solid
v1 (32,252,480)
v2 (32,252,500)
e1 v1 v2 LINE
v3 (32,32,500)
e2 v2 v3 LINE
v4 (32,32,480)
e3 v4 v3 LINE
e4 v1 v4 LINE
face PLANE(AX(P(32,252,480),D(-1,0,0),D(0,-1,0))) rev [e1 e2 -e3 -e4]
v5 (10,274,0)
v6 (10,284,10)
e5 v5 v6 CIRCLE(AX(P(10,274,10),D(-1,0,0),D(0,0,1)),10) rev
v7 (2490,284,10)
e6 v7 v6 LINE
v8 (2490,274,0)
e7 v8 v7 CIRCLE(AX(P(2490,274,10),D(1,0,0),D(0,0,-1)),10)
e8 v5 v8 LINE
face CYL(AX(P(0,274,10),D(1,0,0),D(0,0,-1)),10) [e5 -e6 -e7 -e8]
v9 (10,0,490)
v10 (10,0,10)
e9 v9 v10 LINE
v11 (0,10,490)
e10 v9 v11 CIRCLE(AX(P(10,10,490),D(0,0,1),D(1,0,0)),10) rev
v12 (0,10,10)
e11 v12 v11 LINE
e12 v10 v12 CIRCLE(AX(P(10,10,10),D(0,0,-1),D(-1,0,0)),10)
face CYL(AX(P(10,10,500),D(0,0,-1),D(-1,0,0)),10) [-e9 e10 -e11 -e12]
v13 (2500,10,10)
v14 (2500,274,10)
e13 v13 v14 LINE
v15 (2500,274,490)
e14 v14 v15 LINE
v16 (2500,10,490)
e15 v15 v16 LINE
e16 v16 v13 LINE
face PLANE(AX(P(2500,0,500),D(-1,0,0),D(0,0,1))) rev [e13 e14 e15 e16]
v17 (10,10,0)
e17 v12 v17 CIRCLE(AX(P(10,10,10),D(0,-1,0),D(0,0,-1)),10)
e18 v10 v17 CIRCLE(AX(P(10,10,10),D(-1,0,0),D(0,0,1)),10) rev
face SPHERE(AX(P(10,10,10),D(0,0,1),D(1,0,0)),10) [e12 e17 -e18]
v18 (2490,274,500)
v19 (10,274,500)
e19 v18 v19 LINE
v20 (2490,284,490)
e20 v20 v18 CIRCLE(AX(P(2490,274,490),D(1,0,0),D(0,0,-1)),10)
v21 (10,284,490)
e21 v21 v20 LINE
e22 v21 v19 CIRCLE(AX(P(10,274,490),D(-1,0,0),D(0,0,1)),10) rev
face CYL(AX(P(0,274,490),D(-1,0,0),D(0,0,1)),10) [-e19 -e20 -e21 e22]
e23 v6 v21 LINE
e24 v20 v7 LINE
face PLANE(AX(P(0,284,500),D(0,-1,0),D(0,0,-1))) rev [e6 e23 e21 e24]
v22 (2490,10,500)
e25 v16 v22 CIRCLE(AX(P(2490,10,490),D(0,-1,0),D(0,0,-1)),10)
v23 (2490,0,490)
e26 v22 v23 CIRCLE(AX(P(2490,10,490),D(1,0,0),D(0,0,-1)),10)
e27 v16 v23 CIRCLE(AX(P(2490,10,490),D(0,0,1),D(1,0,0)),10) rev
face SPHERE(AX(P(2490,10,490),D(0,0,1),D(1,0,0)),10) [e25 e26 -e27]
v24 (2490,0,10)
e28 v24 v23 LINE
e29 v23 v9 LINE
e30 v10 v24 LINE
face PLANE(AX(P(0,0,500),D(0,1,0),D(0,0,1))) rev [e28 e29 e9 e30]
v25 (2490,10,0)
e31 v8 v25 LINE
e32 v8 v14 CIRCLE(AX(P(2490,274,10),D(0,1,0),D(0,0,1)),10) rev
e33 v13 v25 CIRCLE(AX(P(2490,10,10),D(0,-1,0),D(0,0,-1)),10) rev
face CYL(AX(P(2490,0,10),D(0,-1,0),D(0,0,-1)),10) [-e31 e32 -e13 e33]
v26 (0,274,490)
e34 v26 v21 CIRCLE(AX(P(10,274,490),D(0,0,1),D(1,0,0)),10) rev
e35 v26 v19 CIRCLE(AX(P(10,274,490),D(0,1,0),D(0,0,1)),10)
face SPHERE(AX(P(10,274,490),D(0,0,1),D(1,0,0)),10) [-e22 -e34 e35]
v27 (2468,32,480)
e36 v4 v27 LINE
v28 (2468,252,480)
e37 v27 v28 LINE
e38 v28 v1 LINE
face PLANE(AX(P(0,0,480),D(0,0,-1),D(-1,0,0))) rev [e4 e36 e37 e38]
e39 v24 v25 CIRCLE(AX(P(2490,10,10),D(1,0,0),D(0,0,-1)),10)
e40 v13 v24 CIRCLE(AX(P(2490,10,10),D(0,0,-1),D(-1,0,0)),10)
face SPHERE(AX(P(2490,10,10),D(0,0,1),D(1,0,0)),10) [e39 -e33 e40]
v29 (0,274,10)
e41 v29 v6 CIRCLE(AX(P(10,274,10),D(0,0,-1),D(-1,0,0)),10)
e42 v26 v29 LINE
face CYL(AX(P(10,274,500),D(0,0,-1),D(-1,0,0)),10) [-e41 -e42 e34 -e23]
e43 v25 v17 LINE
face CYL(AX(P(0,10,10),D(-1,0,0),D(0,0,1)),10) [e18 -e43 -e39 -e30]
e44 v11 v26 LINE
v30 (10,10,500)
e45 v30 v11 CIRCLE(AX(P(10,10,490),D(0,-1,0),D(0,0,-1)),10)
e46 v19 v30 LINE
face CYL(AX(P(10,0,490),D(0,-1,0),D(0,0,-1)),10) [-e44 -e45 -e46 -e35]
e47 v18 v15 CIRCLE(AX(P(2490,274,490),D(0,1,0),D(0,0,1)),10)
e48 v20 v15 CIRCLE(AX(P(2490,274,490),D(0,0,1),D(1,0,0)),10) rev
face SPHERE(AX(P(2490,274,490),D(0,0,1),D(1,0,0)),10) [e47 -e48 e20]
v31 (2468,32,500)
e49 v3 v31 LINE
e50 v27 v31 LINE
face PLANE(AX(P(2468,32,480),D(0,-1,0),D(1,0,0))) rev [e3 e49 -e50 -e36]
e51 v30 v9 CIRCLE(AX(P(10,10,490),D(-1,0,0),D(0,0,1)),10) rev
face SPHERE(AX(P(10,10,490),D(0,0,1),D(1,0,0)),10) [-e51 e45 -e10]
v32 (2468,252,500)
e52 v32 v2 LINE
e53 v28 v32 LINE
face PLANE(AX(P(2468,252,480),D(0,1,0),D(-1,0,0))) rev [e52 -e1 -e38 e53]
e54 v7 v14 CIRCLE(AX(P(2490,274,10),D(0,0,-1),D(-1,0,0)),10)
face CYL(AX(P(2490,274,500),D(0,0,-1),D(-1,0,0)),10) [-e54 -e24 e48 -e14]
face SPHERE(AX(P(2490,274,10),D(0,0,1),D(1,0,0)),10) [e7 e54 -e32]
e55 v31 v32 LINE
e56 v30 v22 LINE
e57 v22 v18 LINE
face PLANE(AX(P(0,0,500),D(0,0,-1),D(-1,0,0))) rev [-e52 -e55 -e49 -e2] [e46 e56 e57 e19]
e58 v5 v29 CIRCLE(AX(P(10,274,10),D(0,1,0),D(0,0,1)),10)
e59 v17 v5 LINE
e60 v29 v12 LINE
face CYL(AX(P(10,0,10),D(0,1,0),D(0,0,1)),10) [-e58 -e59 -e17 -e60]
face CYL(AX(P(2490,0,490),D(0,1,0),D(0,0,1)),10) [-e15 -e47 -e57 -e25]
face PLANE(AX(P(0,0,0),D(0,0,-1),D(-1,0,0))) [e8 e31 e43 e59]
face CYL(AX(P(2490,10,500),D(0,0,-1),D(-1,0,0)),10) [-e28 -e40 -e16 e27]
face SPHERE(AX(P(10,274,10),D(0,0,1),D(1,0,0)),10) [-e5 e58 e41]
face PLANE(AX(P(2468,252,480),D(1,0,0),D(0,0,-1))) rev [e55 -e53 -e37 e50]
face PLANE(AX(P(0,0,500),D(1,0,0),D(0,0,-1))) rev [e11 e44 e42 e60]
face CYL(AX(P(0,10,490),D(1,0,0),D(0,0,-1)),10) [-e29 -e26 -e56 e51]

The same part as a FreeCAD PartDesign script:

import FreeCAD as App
import Part
import Sketcher


def add_polygon(sketch, points):
    """Adds a closed chain of lines whose ends are joined by coincident constraints."""
    first, n = sketch.GeometryCount, len(points)
    for a, b in zip(points, points[1:] + points[:1]):
        sketch.addGeometry(Part.LineSegment(App.Vector(*a, 0), App.Vector(*b, 0)), False)
    for i in range(n):
        sketch.addConstraint(Sketcher.Constraint("Coincident", first + i, 2, first + (i + 1) % n, 1))

doc = App.newDocument("Part")
body = doc.addObject("PartDesign::Body", "Body")

sketch1 = doc.addObject("Sketcher::SketchObject", "Sketch")
body.addObject(sketch1)
sketch1.AttachmentSupport = (doc.XY_Plane, [""])
sketch1.MapMode = "FlatFace"
add_polygon(sketch1, [(0, 284), (0, 0), (2500, 0), (2500, 284)])
sketch1.addConstraint([
    Sketcher.Constraint("Vertical", 0),
    Sketcher.Constraint("Horizontal", 1),
    Sketcher.Constraint("Vertical", 2),
    Sketcher.Constraint("Horizontal", 3),
    Sketcher.Constraint("Coincident", 0, 2, -1, 1),
    Sketcher.Constraint("DistanceX", 1, 1, 1, 2, 2500.0),
    Sketcher.Constraint("DistanceY", 0, 2, 0, 1, 284.0),
])
pad1 = doc.addObject("PartDesign::Pad", "Pad")
body.addObject(pad1)
pad1.Profile = sketch1
pad1.Length = 500
doc.recompute()

fillet = doc.addObject("PartDesign::Fillet", "Fillet")
body.addObject(fillet)
fillet.Base = (pad1, ["Edge1"])
fillet.UseAllEdges = True
fillet.Radius = 10

sketch2 = doc.addObject("Sketcher::SketchObject", "Sketch001")
body.addObject(sketch2)
sketch2.AttachmentSupport = (doc.XY_Plane, [""])
sketch2.MapMode = "FlatFace"
sketch2.AttachmentOffset = App.Placement(App.Vector(0, 0, 500), App.Rotation())
add_polygon(sketch2, [(32, 252), (32, 32), (2468, 32), (2468, 252)])
sketch2.addConstraint([
    Sketcher.Constraint("Vertical", 0),
    Sketcher.Constraint("Horizontal", 1),
    Sketcher.Constraint("Vertical", 2),
    Sketcher.Constraint("Horizontal", 3),
    Sketcher.Constraint("DistanceX", 1, 1, 1, 2, 2436.0),
    Sketcher.Constraint("DistanceY", 0, 2, 0, 1, 220.0),
    Sketcher.Constraint("DistanceX", -1, 1, 0, 2, 32.0),
    Sketcher.Constraint("DistanceY", -1, 1, 0, 2, 32.0),
])
pocket1 = doc.addObject("PartDesign::Pocket", "Pocket")
body.addObject(pocket1)
pocket1.Profile = sketch2
pocket1.Length = 20

doc.recompute()
